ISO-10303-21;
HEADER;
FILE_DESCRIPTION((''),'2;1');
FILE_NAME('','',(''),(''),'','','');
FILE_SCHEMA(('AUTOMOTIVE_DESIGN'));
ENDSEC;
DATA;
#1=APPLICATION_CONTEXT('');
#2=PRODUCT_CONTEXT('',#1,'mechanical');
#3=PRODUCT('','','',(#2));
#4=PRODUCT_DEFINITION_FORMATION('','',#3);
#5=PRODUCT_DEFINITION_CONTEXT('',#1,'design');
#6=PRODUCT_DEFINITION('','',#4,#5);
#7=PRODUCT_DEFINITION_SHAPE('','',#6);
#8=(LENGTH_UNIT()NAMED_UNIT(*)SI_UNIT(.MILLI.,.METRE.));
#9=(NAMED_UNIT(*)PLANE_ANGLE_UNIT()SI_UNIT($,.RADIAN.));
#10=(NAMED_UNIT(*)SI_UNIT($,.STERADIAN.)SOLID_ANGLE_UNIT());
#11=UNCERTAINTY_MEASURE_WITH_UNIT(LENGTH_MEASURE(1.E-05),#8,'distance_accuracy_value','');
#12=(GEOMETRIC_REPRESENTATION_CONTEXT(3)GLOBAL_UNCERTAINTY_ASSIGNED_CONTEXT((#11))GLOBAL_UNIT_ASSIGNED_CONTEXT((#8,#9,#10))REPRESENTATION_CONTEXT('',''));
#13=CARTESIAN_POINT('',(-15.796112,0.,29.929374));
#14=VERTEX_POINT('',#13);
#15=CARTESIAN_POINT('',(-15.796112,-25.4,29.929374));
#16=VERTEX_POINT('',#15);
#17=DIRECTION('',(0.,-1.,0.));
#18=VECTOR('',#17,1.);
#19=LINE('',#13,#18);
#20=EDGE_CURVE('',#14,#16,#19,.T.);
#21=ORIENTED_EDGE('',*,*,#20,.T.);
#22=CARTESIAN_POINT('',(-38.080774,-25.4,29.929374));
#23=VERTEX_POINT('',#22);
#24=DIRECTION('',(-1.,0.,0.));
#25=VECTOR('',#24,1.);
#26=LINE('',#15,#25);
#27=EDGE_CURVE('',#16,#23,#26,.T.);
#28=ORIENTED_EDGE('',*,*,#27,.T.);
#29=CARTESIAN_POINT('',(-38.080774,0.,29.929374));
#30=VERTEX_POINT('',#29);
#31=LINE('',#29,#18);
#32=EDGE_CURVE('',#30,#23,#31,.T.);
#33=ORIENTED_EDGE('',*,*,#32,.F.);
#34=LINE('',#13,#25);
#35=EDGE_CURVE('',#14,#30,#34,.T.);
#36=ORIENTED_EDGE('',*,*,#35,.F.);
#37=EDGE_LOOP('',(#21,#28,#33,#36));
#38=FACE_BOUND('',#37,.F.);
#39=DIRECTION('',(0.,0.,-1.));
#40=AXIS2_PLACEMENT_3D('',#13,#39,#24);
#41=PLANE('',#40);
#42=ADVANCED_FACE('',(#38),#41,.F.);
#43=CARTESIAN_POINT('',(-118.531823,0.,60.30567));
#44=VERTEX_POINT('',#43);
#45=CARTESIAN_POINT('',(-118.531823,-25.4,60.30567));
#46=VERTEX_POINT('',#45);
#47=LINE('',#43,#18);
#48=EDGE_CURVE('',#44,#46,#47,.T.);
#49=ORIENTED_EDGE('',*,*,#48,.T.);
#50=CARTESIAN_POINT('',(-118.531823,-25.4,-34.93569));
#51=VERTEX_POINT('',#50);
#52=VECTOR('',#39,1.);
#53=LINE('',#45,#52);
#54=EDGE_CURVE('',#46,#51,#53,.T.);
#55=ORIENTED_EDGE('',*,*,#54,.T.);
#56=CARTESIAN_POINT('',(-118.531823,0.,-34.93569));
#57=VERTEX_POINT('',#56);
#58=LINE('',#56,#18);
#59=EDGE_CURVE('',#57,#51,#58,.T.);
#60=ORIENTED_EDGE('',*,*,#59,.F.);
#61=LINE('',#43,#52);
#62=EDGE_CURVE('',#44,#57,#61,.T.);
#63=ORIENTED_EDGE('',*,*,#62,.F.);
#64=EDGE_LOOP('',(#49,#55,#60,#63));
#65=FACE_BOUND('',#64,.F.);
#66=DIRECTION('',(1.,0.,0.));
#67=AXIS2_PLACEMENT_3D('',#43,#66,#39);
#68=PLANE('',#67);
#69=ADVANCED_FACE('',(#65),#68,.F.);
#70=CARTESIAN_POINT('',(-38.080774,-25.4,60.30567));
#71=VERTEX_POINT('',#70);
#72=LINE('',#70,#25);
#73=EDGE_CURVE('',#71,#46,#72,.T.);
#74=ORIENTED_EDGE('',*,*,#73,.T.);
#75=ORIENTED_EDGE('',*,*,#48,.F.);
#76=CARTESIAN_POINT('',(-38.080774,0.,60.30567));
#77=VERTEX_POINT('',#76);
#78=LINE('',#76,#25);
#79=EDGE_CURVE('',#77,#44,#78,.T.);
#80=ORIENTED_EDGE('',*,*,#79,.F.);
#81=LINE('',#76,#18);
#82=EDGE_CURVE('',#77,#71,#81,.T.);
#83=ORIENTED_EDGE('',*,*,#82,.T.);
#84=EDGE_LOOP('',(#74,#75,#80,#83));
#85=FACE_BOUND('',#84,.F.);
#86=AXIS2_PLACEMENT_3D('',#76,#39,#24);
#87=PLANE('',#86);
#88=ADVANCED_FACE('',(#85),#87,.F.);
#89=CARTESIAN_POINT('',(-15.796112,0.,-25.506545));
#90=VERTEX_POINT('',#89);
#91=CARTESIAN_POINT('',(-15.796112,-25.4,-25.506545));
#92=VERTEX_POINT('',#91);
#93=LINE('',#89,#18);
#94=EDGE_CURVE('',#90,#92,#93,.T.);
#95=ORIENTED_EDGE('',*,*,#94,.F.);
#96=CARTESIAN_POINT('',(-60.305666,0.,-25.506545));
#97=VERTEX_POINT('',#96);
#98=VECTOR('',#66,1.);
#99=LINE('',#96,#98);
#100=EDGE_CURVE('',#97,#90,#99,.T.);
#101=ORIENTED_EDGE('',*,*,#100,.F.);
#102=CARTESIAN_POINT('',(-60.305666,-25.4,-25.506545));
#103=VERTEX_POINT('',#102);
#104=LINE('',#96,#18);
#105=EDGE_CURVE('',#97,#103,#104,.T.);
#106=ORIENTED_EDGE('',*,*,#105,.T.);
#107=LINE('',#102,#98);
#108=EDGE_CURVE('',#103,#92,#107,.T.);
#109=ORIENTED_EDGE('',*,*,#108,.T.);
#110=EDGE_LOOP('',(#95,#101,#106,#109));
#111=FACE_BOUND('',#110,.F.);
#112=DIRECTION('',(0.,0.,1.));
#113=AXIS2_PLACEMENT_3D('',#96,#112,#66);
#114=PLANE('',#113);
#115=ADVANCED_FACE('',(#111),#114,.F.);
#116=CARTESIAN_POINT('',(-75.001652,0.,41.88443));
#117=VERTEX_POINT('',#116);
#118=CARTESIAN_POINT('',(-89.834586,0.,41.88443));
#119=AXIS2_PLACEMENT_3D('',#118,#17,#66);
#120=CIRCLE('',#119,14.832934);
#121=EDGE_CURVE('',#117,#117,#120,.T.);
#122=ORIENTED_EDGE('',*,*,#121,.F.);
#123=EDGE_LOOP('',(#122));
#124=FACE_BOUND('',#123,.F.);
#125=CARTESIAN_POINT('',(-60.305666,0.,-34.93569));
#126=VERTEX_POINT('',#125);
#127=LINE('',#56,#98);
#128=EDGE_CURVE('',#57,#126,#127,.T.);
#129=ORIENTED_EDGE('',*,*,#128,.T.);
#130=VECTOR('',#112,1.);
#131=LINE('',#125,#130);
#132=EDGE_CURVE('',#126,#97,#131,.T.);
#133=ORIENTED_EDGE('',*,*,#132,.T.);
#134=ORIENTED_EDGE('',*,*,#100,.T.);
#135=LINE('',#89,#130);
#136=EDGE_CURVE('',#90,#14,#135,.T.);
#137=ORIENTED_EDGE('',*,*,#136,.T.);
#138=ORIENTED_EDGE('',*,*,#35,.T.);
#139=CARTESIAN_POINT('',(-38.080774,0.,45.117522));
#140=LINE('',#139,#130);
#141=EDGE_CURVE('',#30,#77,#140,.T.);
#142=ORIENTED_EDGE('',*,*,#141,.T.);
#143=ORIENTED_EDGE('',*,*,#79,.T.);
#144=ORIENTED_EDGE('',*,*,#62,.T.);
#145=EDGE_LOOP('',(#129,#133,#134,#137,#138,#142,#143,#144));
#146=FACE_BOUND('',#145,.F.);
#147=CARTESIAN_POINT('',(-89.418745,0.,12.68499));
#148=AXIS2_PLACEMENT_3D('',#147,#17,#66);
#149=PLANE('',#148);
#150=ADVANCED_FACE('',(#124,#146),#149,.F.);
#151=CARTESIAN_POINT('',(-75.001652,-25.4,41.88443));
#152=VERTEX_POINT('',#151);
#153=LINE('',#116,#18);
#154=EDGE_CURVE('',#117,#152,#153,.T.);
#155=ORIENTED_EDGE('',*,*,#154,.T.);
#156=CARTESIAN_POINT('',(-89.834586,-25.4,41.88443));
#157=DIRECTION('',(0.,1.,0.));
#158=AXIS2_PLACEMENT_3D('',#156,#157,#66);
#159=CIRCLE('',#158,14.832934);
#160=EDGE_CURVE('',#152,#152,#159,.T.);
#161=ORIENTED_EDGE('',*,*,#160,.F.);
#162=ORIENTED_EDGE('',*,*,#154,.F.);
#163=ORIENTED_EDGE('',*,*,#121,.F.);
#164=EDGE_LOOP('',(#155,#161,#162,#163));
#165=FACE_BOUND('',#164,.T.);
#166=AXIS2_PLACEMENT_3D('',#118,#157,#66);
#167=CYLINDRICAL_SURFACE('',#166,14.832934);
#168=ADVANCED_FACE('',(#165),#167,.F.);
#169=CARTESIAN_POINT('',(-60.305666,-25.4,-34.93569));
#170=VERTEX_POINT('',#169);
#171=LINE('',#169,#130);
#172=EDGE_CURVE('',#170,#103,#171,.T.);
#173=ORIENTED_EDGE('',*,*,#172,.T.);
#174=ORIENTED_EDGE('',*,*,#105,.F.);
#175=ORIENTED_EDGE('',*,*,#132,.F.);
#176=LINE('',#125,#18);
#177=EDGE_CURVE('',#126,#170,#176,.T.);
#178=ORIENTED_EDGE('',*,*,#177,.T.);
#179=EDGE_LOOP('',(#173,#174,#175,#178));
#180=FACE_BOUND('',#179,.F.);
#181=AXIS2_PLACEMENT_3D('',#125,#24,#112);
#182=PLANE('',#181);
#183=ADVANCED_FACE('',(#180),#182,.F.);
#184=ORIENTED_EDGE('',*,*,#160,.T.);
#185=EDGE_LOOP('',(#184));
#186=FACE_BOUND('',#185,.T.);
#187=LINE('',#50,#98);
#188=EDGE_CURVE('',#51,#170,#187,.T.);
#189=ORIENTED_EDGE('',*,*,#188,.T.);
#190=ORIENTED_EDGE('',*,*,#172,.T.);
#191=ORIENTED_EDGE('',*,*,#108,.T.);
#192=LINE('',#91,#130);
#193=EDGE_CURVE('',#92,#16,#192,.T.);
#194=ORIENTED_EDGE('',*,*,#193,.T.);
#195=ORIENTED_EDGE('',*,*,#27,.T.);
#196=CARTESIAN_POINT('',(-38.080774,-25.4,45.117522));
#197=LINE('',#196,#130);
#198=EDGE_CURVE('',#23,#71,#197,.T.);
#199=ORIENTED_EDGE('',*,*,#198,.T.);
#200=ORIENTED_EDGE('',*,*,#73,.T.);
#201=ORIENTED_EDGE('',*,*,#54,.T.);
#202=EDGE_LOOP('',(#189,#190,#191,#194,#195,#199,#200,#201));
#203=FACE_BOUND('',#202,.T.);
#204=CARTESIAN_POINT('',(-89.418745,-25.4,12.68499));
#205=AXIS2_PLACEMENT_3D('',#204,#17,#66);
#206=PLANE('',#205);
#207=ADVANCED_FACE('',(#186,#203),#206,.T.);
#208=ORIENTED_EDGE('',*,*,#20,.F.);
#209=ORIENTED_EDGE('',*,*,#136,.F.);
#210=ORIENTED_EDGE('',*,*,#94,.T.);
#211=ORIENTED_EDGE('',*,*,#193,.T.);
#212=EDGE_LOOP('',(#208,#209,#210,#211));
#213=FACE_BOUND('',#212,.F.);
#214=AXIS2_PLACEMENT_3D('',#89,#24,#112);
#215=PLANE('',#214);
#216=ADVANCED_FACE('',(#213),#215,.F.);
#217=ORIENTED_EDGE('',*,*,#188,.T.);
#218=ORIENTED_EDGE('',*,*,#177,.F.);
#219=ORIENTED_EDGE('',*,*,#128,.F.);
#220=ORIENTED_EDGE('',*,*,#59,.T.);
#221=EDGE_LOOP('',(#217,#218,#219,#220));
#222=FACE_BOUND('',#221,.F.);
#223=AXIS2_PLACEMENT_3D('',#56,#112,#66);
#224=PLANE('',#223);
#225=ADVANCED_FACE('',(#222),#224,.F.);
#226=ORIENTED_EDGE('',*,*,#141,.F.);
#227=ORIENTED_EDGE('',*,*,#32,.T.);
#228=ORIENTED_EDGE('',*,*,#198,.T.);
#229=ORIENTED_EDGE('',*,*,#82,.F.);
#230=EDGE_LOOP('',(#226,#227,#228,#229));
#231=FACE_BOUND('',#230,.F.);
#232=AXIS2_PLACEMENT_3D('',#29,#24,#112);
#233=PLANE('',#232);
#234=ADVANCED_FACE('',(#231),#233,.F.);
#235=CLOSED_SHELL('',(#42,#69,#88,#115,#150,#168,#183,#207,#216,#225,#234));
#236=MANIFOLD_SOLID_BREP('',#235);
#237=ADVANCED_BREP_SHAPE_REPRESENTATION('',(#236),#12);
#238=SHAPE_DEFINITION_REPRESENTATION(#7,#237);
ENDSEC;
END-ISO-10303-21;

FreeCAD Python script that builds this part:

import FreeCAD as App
import Part
import Sketcher


def add_polygon(sketch, points):
    """Adds a closed chain of lines whose ends are joined by coincident constraints."""
    first, n = sketch.GeometryCount, len(points)
    for a, b in zip(points, points[1:] + points[:1]):
        sketch.addGeometry(Part.LineSegment(App.Vector(*a, 0), App.Vector(*b, 0)), False)
    for i in range(n):
        sketch.addConstraint(Sketcher.Constraint("Coincident", first + i, 2, first + (i + 1) % n, 1))

doc = App.newDocument("Part")
params = doc.addObject("Spreadsheet::Sheet", "Params")
for row, (alias, value) in enumerate([
    ("pad1_length", "1 in"),
], start=1):
    params.set(f"A{row}", alias)
    params.set(f"B{row}", "=" + value)
    params.setAlias(f"B{row}", alias)

body = doc.addObject("PartDesign::Body", "Body")

sketch1 = doc.addObject("Sketcher::SketchObject", "Sketch")
body.addObject(sketch1)
sketch1.AttachmentSupport = (doc.XZ_Plane, [""])
sketch1.MapMode = "FlatFace"
add_polygon(sketch1, [(-118.531823, 60.30567), (-118.531823, -34.93569), (-60.305666, -34.93569), (-60.305666, -25.506545), (-15.796112, -25.506545), (-15.796112, 29.929374), (-38.080774, 29.929374), (-38.080774, 60.30567)])
sketch1.addConstraint(Sketcher.Constraint("Vertical", 0))
sketch1.addConstraint(Sketcher.Constraint("Horizontal", 1))
sketch1.addConstraint(Sketcher.Constraint("Vertical", 2))
sketch1.addConstraint(Sketcher.Constraint("Horizontal", 3))
sketch1.addConstraint(Sketcher.Constraint("Vertical", 4))
sketch1.addConstraint(Sketcher.Constraint("Horizontal", 5))
sketch1.addConstraint(Sketcher.Constraint("Vertical", 6))
sketch1.addConstraint(Sketcher.Constraint("Horizontal", 7))
sketch1.addConstraint(Sketcher.Constraint("DistanceX", 5, 2, 5, 1, 22.284662))
sketch1.addConstraint(Sketcher.Constraint("DistanceX", 7, 2, 7, 1, 80.451049))
sketch1.addConstraint(Sketcher.Constraint("DistanceY", 0, 2, 0, 1, 95.24136))
sketch1.addConstraint(Sketcher.Constraint("DistanceY", 4, 1, 4, 2, 55.435919))
sketch1.addConstraint(Sketcher.Constraint("DistanceX", 1, 1, 1, 2, 58.226157))
sketch1.addConstraint(Sketcher.Constraint("DistanceY", 2, 1, 2, 2, 9.429145))
sketch1.addConstraint(Sketcher.Constraint("DistanceY", 0, 2, -1, 1, 34.93569))
sketch1.addConstraint(Sketcher.Constraint("DistanceX", 0, 2, -1, 1, 118.531823))
pad1 = doc.addObject("PartDesign::Pad", "Pad")
body.addObject(pad1)
pad1.Profile = sketch1
pad1.setExpression("Length", "Params.pad1_length")

sketch2 = doc.addObject("Sketcher::SketchObject", "Sketch001")
body.addObject(sketch2)
sketch2.AttachmentSupport = (doc.XZ_Plane, [""])
sketch2.MapMode = "FlatFace"
sketch2.addGeometry(Part.Circle(App.Vector(-89.834586, 41.88443, 0), App.Vector(0, 0, 1), 14.832934), False)
sketch2.addConstraint(Sketcher.Constraint("Diameter", 0, 29.665868))
sketch2.addConstraint(Sketcher.Constraint("DistanceY", -1, 1, 0, 3, 41.88443))
sketch2.addConstraint(Sketcher.Constraint("DistanceX", 0, 3, -1, 1, 89.834586))
pocket1 = doc.addObject("PartDesign::Pocket", "Pocket")
body.addObject(pocket1)
pocket1.Profile = sketch2
pocket1.Type = "ThroughAll"
pocket1.Reversed = True

doc.recompute()
